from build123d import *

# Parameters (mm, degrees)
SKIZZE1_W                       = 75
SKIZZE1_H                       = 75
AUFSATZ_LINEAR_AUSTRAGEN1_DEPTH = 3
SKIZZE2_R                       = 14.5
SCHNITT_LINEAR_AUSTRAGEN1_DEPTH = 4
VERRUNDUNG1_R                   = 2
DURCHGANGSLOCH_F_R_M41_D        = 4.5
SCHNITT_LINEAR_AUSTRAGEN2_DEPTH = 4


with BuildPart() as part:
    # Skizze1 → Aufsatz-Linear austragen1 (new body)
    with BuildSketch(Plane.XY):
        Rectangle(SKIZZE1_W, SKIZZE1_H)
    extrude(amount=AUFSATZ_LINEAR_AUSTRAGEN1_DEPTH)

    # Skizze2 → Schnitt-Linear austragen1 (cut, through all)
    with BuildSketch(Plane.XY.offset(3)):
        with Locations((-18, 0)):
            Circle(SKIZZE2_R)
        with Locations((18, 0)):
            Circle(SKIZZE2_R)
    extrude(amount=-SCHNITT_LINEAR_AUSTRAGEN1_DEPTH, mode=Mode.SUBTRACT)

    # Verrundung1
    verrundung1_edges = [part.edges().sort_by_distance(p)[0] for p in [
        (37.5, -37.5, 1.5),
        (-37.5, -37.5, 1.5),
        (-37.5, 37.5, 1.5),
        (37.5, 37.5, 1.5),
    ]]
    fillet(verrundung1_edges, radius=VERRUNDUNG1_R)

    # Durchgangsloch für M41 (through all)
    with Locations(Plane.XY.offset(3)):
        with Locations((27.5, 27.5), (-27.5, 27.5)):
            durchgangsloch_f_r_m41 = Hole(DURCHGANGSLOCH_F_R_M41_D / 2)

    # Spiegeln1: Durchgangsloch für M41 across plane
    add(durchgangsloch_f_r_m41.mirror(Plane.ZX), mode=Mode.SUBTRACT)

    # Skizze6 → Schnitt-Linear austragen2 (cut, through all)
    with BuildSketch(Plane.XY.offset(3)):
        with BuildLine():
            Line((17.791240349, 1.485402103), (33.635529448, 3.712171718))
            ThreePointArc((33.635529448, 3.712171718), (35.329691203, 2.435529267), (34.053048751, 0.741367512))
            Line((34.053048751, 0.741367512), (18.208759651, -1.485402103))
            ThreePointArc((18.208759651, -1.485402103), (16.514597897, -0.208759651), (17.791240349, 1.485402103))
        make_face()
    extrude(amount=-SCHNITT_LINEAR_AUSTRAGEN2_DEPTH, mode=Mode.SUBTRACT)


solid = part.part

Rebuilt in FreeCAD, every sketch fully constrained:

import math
import FreeCAD as App
import Part
import Sketcher
Q = App.Units.Quantity


def edges_at(feature, points):
    """Names of the edges that pass closest to the given points."""
    edges = feature.Shape.Edges
    near = lambda p: min(range(len(edges)), key=lambda i: edges[i].distToShape(Part.Vertex(*p))[0])
    return sorted({f"Edge{near(p) + 1}" for p in points})


def add_polygon(sketch, points):
    """Adds a closed chain of lines whose ends are joined by coincident constraints."""
    first, n = sketch.GeometryCount, len(points)
    for a, b in zip(points, points[1:] + points[:1]):
        sketch.addGeometry(Part.LineSegment(App.Vector(*a, 0), App.Vector(*b, 0)), False)
    for i in range(n):
        sketch.addConstraint(Sketcher.Constraint("Coincident", first + i, 2, first + (i + 1) % n, 1))

doc = App.newDocument("Part")
body = doc.addObject("PartDesign::Body", "Body")

# Sketch on XY plane
sketch1 = body.newObject("Sketcher::SketchObject", "Sketch")
sketch1.AttachmentSupport = (doc.getObject("XY_Plane"), [""])
sketch1.MapMode = "FlatFace"
add_polygon(sketch1, [(-38, 38), (-38, -38), (38, -38), (38, 38)])  # lines 0-3
sketch1.addConstraint(Sketcher.Constraint("Vertical", 0))
sketch1.addConstraint(Sketcher.Constraint("Horizontal", 1))
sketch1.addConstraint(Sketcher.Constraint("Vertical", 2))
sketch1.addConstraint(Sketcher.Constraint("Horizontal", 3))
sketch1.addConstraint(Sketcher.Constraint("Symmetric", 0, 2, 2, 2, -1, 1))
sketch1.addConstraint(Sketcher.Constraint("Equal", 3, 0))
sketch1.addConstraint(Sketcher.Constraint("DistanceX", 1, 1, 1, 2, Q("75 mm")))
pad1 = body.newObject("PartDesign::Pad", "Pad")
pad1.Profile = sketch1
pad1.Length = 3

# Sketch on XY plane
sketch2 = body.newObject("Sketcher::SketchObject", "Sketch001")
sketch2.AttachmentSupport = (doc.getObject("XY_Plane"), [""])
sketch2.MapMode = "FlatFace"
sketch2.AttachmentOffset = App.Placement(App.Vector(0, 0, 3), App.Rotation())
sketch2.addGeometry(Part.Circle(App.Vector(-18, 0, 0), App.Vector(0, 0, 1), 14), False)
sketch2.addGeometry(Part.Circle(App.Vector(18, 0, 0), App.Vector(0, 0, 1), 14), False)
sketch2.addConstraint(Sketcher.Constraint("Equal", 0, 1))
sketch2.addConstraint(Sketcher.Constraint("Symmetric", 0, 3, 1, 3, -1, 1))
sketch2.addConstraint(Sketcher.Constraint("PointOnObject", 0, 3, -1))
sketch2.addConstraint(Sketcher.Constraint("Diameter", 0, Q("29 mm")))
sketch2.addConstraint(Sketcher.Constraint("DistanceX", 0, 3, -1, 1, Q("18 mm")))
pocket1 = body.newObject("PartDesign::Pocket", "Pocket")
pocket1.Profile = sketch2
pocket1.Type = "ThroughAll"
doc.recompute()

fillet = body.newObject("PartDesign::Fillet", "Fillet")
fillet.Base = (pocket1, edges_at(pocket1, [
    (37.5, -37.5, 1.5),
    (-37.5, -37.5, 1.5),
    (-37.5, 37.5, 1.5),
    (37.5, 37.5, 1.5),
]))
fillet.Radius = 2

# Sketch on XY plane
sketch3 = body.newObject("Sketcher::SketchObject", "Sketch002")
sketch3.AttachmentSupport = (doc.getObject("XY_Plane"), [""])
sketch3.MapMode = "FlatFace"
sketch3.AttachmentOffset = App.Placement(App.Vector(0, 0, 3), App.Rotation())
sketch3.addGeometry(Part.Circle(App.Vector(27.5, 27.5, 0), App.Vector(0, 0, 1), 2.2), False)
sketch3.addGeometry(Part.Circle(App.Vector(-27.5, 27.5, 0), App.Vector(0, 0, 1), 2.2), False)
sketch3.addConstraint(Sketcher.Constraint("Equal", 0, 1))
sketch3.addConstraint(Sketcher.Constraint("Symmetric", 0, 3, 1, 3, -2))
sketch3.addConstraint(Sketcher.Constraint("Diameter", 0, Q("4.5 mm")))
sketch3.addConstraint(Sketcher.Constraint("DistanceX", 1, 3, 0, 3, Q("55 mm")))
sketch3.addConstraint(Sketcher.Constraint("DistanceY", -1, 1, 0, 3, Q("27.5 mm")))
doc.recompute()
hole = body.newObject("PartDesign::Hole", "Hole")
hole.Profile = sketch3
hole.ThreadType = "None"
hole.Diameter = 4.5
hole.DepthType = "ThroughAll"
doc.recompute()

mirrored = body.newObject("PartDesign::Mirrored", "Mirrored")
mirrored.Originals = [hole]
mirrored.MirrorPlane = (doc.getObject("XZ_Plane"), [""])
body.Tip = mirrored

# Sketch on XY plane
sketch4 = body.newObject("Sketcher::SketchObject", "Sketch003")
sketch4.AttachmentSupport = (doc.getObject("XY_Plane"), [""])
sketch4.MapMode = "FlatFace"
sketch4.AttachmentOffset = App.Placement(App.Vector(0, 0, 3), App.Rotation())
sketch4.addGeometry(Part.LineSegment(App.Vector(33.6, 3.7, 0), App.Vector(17.8, 1.5, 0)), False)
sketch4.addGeometry(Part.ArcOfCircle(Part.Circle(App.Vector(18, 0, 0), App.Vector(0, 0, 1), 1.5), math.radians(98), math.radians(278)), False)
sketch4.addGeometry(Part.LineSegment(App.Vector(18.2, -1.5, 0), App.Vector(34.1, 0.7, 0)), False)
sketch4.addGeometry(Part.ArcOfCircle(Part.Circle(App.Vector(33.8, 2.2, 0), App.Vector(0, 0, 1), 1.5), math.radians(-82), math.radians(98)), False)
sketch4.addConstraint(Sketcher.Constraint("Tangent", 0, 2, 1, 1))
sketch4.addConstraint(Sketcher.Constraint("Tangent", 1, 2, 2, 1))
sketch4.addConstraint(Sketcher.Constraint("Tangent", 2, 2, 3, 1))
sketch4.addConstraint(Sketcher.Constraint("Tangent", 3, 2, 0, 1))
sketch4.addConstraint(Sketcher.Constraint("Equal", 1, 3))
sketch4.addConstraint(Sketcher.Constraint("PointOnObject", 1, 3, -1))
sketch4.addConstraint(Sketcher.Constraint("Radius", 1, Q("1.5 mm")))
sketch4.addConstraint(Sketcher.Constraint("Angle", 0, Q("-172 deg")))
sketch4.addConstraint(Sketcher.Constraint("Distance", 0, Q("16 mm")))
sketch4.addConstraint(Sketcher.Constraint("DistanceX", -1, 1, 1, 3, Q("18 mm")))
pocket2 = body.newObject("PartDesign::Pocket", "Pocket001")
pocket2.Profile = sketch4
pocket2.Type = "ThroughAll"

doc.recompute()
